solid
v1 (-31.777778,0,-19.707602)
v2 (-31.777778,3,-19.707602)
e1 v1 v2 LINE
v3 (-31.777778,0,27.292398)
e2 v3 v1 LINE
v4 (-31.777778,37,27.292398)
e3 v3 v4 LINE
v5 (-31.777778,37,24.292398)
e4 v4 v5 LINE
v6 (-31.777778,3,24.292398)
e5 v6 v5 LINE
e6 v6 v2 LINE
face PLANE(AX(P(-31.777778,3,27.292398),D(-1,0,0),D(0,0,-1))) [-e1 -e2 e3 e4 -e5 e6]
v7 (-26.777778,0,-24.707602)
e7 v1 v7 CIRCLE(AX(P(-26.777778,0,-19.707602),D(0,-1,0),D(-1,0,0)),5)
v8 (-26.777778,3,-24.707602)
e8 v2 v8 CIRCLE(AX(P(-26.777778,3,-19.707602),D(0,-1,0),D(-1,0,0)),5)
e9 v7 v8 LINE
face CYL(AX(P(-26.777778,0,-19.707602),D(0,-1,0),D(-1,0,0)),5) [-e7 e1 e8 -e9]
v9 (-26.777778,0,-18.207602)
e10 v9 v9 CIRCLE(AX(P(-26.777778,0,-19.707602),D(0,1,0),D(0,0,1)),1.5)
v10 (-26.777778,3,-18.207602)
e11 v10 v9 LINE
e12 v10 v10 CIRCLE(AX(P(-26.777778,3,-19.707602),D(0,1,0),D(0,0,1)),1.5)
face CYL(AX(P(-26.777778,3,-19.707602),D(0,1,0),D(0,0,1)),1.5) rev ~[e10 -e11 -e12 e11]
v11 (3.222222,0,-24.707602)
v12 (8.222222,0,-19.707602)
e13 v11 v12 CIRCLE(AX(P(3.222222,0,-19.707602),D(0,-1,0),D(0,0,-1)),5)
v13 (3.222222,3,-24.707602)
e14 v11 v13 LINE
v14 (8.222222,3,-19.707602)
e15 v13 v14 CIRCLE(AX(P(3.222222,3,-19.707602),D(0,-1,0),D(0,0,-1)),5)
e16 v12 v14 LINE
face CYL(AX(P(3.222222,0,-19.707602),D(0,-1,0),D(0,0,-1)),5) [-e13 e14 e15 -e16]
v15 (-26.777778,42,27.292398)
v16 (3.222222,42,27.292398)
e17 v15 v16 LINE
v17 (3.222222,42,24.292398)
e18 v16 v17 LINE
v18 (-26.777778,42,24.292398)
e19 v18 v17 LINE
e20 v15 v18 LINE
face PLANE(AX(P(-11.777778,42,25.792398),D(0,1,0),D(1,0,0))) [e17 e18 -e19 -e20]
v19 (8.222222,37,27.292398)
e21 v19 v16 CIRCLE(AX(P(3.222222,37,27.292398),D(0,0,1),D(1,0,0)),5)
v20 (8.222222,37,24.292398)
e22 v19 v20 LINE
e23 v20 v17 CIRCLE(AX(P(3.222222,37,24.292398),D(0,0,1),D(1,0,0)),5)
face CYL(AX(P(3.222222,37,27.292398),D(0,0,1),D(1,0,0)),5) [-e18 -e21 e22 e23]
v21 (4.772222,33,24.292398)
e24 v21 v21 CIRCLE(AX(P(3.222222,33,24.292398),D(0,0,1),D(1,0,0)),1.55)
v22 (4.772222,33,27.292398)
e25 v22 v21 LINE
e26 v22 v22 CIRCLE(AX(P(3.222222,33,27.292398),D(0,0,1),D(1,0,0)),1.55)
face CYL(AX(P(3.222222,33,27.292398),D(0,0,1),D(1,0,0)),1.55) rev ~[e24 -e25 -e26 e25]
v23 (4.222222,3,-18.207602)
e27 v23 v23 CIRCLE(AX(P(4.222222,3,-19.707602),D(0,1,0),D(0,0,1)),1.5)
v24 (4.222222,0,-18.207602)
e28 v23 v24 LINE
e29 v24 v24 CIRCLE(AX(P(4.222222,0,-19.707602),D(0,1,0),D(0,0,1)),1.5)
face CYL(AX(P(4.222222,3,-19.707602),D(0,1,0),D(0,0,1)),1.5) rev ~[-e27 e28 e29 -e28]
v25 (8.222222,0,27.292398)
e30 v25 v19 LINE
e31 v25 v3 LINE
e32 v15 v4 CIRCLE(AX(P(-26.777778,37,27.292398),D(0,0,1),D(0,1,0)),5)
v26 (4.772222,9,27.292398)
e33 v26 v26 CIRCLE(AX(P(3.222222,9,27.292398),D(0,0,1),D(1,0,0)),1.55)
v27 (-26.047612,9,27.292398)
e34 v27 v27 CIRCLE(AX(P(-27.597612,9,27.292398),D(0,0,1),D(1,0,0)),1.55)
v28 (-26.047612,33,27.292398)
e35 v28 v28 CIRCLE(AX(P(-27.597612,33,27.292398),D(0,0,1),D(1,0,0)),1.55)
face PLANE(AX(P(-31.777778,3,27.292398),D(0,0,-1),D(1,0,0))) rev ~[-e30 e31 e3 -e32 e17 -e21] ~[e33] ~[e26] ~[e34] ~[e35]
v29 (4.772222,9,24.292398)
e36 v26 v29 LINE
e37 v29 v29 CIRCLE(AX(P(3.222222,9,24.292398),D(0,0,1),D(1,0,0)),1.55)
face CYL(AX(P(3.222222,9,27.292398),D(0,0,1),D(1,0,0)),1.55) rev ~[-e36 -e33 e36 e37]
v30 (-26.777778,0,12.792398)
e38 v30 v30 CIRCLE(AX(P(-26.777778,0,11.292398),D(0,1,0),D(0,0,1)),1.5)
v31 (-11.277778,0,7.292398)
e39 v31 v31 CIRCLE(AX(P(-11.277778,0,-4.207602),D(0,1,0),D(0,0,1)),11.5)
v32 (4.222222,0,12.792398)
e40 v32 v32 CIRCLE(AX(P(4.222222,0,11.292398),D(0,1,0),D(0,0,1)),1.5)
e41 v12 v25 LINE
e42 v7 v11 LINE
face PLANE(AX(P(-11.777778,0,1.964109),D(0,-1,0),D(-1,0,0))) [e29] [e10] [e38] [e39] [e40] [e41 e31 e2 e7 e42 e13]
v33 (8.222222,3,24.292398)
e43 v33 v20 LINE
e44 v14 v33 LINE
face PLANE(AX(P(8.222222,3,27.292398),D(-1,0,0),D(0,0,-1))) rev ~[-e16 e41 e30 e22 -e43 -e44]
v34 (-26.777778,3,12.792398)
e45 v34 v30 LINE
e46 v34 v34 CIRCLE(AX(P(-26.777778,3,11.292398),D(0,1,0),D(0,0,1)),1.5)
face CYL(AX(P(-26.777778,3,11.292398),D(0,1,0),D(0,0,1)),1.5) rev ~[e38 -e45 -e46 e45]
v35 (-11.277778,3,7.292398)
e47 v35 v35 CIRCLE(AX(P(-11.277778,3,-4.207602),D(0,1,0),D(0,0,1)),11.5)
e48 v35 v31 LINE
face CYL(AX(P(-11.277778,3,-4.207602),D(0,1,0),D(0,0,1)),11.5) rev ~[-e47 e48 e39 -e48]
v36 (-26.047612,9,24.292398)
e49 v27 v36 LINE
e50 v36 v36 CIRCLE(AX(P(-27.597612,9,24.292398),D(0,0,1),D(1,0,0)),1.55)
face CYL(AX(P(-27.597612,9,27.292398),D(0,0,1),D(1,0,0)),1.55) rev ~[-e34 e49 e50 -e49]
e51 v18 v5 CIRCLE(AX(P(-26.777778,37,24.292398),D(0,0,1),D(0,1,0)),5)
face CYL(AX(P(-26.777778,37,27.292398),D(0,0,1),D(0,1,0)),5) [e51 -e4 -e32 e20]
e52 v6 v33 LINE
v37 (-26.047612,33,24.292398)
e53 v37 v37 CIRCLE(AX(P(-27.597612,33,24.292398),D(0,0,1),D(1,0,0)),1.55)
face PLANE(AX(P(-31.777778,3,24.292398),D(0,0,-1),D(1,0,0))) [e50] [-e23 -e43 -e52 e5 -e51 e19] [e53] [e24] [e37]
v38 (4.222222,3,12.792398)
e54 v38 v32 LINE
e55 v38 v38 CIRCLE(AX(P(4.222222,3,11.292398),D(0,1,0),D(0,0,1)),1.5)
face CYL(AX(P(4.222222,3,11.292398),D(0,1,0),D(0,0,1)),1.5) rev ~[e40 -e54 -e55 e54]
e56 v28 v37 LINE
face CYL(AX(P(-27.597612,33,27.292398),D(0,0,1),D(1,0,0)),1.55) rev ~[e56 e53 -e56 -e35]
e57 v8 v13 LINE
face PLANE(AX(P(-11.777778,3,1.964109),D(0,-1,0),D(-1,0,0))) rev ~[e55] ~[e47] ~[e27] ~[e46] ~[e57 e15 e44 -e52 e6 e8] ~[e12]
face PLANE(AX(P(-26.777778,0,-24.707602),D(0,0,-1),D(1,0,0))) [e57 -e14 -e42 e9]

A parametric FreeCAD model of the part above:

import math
import FreeCAD as App
import Part
import Sketcher

V = App.Vector


def add_polygon(sketch, points):
    """Adds a closed chain of lines whose ends are joined by coincident constraints."""
    first, n = sketch.GeometryCount, len(points)
    for a, b in zip(points, points[1:] + points[:1]):
        sketch.addGeometry(Part.LineSegment(App.Vector(*a, 0), App.Vector(*b, 0)), False)
    for i in range(n):
        sketch.addConstraint(Sketcher.Constraint("Coincident", first + i, 2, first + (i + 1) % n, 1))

doc = App.newDocument("Part")
params = doc.addObject("Spreadsheet::Sheet", "Params")
for row, (alias, value) in enumerate([
    ("sketch1_radius", "5 mm"),
    ("sketch1_width", "30 mm"),
    ("sketch1_height", "47 mm"),
    ("pad1_length", "3 mm"),
    ("sketch2_width", "40 mm"),
    ("sketch2_height", "3 mm"),
    ("pad2_length", "39 mm"),
    ("sketch3_radius", "5 mm"),
    ("sketch4_radius", "5 mm"),
    ("sketch5_diameter", "3 mm"),
    ("sketch6_diameter", "3 mm"),
    ("sketch7_diameter", "3 mm"),
    ("sketch8_diameter", "3 mm"),
    ("sketch9_diameter", "23 mm"),
    ("sketch10_diameter", "3.1 mm"),
    ("sketch11_diameter", "3.1 mm"),
    ("sketch12_diameter", "3.1 mm"),
    ("sketch13_diameter", "3.1 mm"),
], start=1):
    params.set(f"A{row}", alias)
    params.set(f"B{row}", "=" + value)
    params.setAlias(f"B{row}", alias)

body = doc.addObject("PartDesign::Body", "Body")

sketch1 = doc.addObject("Sketcher::SketchObject", "Sketch")
body.addObject(sketch1)
sketch1.AttachmentSupport = (doc.XZ_Plane, [""])
sketch1.MapMode = "FlatFace"
sketch1.addGeometry([
    Part.LineSegment(V(3, -25, 0), V(-27, -25, 0)),
    Part.ArcOfCircle(Part.Circle(V(-27, -20, 0), V(0, 0, 1), 5), math.radians(180), math.radians(270)),
    Part.LineSegment(V(-32, -20, 0), V(-32, 27, 0)),
    Part.LineSegment(V(-32, 27, 0), V(8, 27, 0)),
    Part.LineSegment(V(8, 27, 0), V(8, -20, 0)),
    Part.ArcOfCircle(Part.Circle(V(3, -20, 0), V(0, 0, 1), 5), math.radians(-90), math.radians(0)),
], False)
sketch1.addConstraint([
    Sketcher.Constraint("Tangent", 0, 2, 1, 2),
    Sketcher.Constraint("Tangent", 1, 1, 2, 1),
    Sketcher.Constraint("Coincident", 2, 2, 3, 1),
    Sketcher.Constraint("Coincident", 3, 2, 4, 1),
    Sketcher.Constraint("Tangent", 4, 2, 5, 2),
    Sketcher.Constraint("Tangent", 5, 1, 0, 1),
    Sketcher.Constraint("Horizontal", 0),
    Sketcher.Constraint("Vertical", 2),
    Sketcher.Constraint("Horizontal", 3),
    Sketcher.Constraint("Vertical", 4),
    Sketcher.Constraint("Equal", 1, 5),
    Sketcher.Constraint("Radius", 1, 5.0),
    Sketcher.Constraint("DistanceX", 0, 2, 0, 1, 30.0),
    Sketcher.Constraint("DistanceY", 2, 1, 2, 2, 47.0),
    Sketcher.Constraint("DistanceX", 1, 3, -1, 1, 26.777778),
    Sketcher.Constraint("DistanceY", 1, 3, -1, 1, 19.707602),
])
sketch1.setExpression("Constraints[11]", "Params.sketch1_radius")
sketch1.setExpression("Constraints[12]", "Params.sketch1_width")
sketch1.setExpression("Constraints[13]", "Params.sketch1_height")
pad1 = doc.addObject("PartDesign::Pad", "Pad")
body.addObject(pad1)
pad1.Profile = sketch1
pad1.setExpression("Length", "Params.pad1_length")
pad1.Reversed = True

sketch2 = doc.addObject("Sketcher::SketchObject", "Sketch001")
body.addObject(sketch2)
sketch2.AttachmentSupport = (doc.XZ_Plane, [""])
sketch2.MapMode = "FlatFace"
sketch2.AttachmentOffset = App.Placement(V(0, 0, -3), App.Rotation())
add_polygon(sketch2, [(-31.8, 24.3), (-31.8, 27.3), (8.2, 27.3), (8.2, 24.3)])
sketch2.addConstraint([
    Sketcher.Constraint("Vertical", 0),
    Sketcher.Constraint("Horizontal", 1),
    Sketcher.Constraint("Vertical", 2),
    Sketcher.Constraint("Horizontal", 3),
    Sketcher.Constraint("DistanceX", 1, 1, 1, 2, 40.0),
    Sketcher.Constraint("DistanceY", 0, 1, 0, 2, 3.0),
    Sketcher.Constraint("DistanceX", 0, 2, -1, 1, 31.777778),
    Sketcher.Constraint("DistanceY", -1, 1, 0, 2, 27.292398),
])
sketch2.setExpression("Constraints[8]", "Params.sketch2_width")
sketch2.setExpression("Constraints[9]", "Params.sketch2_height")
pad2 = doc.addObject("PartDesign::Pad", "Pad001")
body.addObject(pad2)
pad2.Profile = sketch2
pad2.setExpression("Length", "Params.pad2_length")
pad2.Reversed = True

sketch3 = doc.addObject("Sketcher::SketchObject", "Sketch002")
body.addObject(sketch3)
sketch3.AttachmentSupport = (doc.XY_Plane, [""])
sketch3.MapMode = "FlatFace"
sketch3.AttachmentOffset = App.Placement(V(0, 0, 27.292398), App.Rotation())
sketch3.addGeometry([
    Part.LineSegment(V(-32, 42, 0), V(-32, 37, 0)),
    Part.ArcOfCircle(Part.Circle(V(-27, 37, 0), V(0, 0, 1), 5), math.radians(90), math.radians(180)),
    Part.LineSegment(V(-27, 42, 0), V(-32, 42, 0)),
], False)
sketch3.addConstraint([
    Sketcher.Constraint("Tangent", 0, 2, 1, 2),
    Sketcher.Constraint("Tangent", 1, 1, 2, 1),
    Sketcher.Constraint("Coincident", 2, 2, 0, 1),
    Sketcher.Constraint("Vertical", 0),
    Sketcher.Constraint("Horizontal", 2),
    Sketcher.Constraint("Radius", 1, 5.0),
    Sketcher.Constraint("DistanceY", -1, 1, 1, 3, 37.0),
    Sketcher.Constraint("DistanceX", 1, 3, -1, 1, 26.777778),
])
sketch3.setExpression("Constraints[5]", "Params.sketch3_radius")
pocket1 = doc.addObject("PartDesign::Pocket", "Pocket")
body.addObject(pocket1)
pocket1.Profile = sketch3
pocket1.Type = "UpToFirst"

sketch4 = doc.addObject("Sketcher::SketchObject", "Sketch003")
body.addObject(sketch4)
sketch4.AttachmentSupport = (doc.XY_Plane, [""])
sketch4.MapMode = "FlatFace"
sketch4.AttachmentOffset = App.Placement(V(0, 0, 27.292398), App.Rotation())
sketch4.addGeometry([
    Part.LineSegment(V(8.2, 42, 0), V(3.2, 42, 0)),
    Part.ArcOfCircle(Part.Circle(V(3.2, 37, 0), V(0, 0, 1), 5), math.radians(0), math.radians(90)),
    Part.LineSegment(V(8.2, 37, 0), V(8.2, 42, 0)),
], False)
sketch4.addConstraint([
    Sketcher.Constraint("Tangent", 0, 2, 1, 2),
    Sketcher.Constraint("Tangent", 1, 1, 2, 1),
    Sketcher.Constraint("Coincident", 2, 2, 0, 1),
    Sketcher.Constraint("Horizontal", 0),
    Sketcher.Constraint("Vertical", 2),
    Sketcher.Constraint("Radius", 1, 5.0),
    Sketcher.Constraint("DistanceY", -1, 1, 1, 3, 37.0),
    Sketcher.Constraint("DistanceX", -1, 1, 1, 3, 3.222222),
])
sketch4.setExpression("Constraints[5]", "Params.sketch4_radius")
pocket2 = doc.addObject("PartDesign::Pocket", "Pocket001")
body.addObject(pocket2)
pocket2.Profile = sketch4
pocket2.Type = "UpToFirst"

sketch5 = doc.addObject("Sketcher::SketchObject", "Sketch004")
body.addObject(sketch5)
sketch5.AttachmentSupport = (doc.XZ_Plane, [""])
sketch5.MapMode = "FlatFace"
sketch5.AttachmentOffset = App.Placement(V(0, 0, -3), App.Rotation())
sketch5.addGeometry(Part.Circle(V(-26.8, -19.7, 0), V(0, 0, 1), 1.5), False)
sketch5.addConstraint([
    Sketcher.Constraint("Diameter", 0, 3.0),
    Sketcher.Constraint("DistanceX", 0, 3, -1, 1, 26.777778),
    Sketcher.Constraint("DistanceY", 0, 3, -1, 1, 19.707602),
])
sketch5.setExpression("Constraints[0]", "Params.sketch5_diameter")
pocket3 = doc.addObject("PartDesign::Pocket", "Pocket002")
body.addObject(pocket3)
pocket3.Profile = sketch5
pocket3.Type = "UpToFirst"
pocket3.Reversed = True

sketch6 = doc.addObject("Sketcher::SketchObject", "Sketch005")
body.addObject(sketch6)
sketch6.AttachmentSupport = (doc.XZ_Plane, [""])
sketch6.MapMode = "FlatFace"
sketch6.AttachmentOffset = App.Placement(V(0, 0, -3), App.Rotation())
sketch6.addGeometry(Part.Circle(V(4.2, -19.7, 0), V(0, 0, 1), 1.5), False)
sketch6.addConstraint([
    Sketcher.Constraint("Diameter", 0, 3.0),
    Sketcher.Constraint("DistanceX", -1, 1, 0, 3, 4.222222),
    Sketcher.Constraint("DistanceY", 0, 3, -1, 1, 19.707602),
])
sketch6.setExpression("Constraints[0]", "Params.sketch6_diameter")
pocket4 = doc.addObject("PartDesign::Pocket", "Pocket003")
body.addObject(pocket4)
pocket4.Profile = sketch6
pocket4.Type = "UpToFirst"
pocket4.Reversed = True

sketch7 = doc.addObject("Sketcher::SketchObject", "Sketch006")
body.addObject(sketch7)
sketch7.AttachmentSupport = (doc.XZ_Plane, [""])
sketch7.MapMode = "FlatFace"
sketch7.AttachmentOffset = App.Placement(V(0, 0, -3), App.Rotation())
sketch7.addGeometry(Part.Circle(V(-26.8, 11.3, 0), V(0, 0, 1), 1.5), False)
sketch7.addConstraint([
    Sketcher.Constraint("Diameter", 0, 3.0),
    Sketcher.Constraint("DistanceX", 0, 3, -1, 1, 26.777778),
    Sketcher.Constraint("DistanceY", -1, 1, 0, 3, 11.292398),
])
sketch7.setExpression("Constraints[0]", "Params.sketch7_diameter")
pocket5 = doc.addObject("PartDesign::Pocket", "Pocket004")
body.addObject(pocket5)
pocket5.Profile = sketch7
pocket5.Type = "UpToFirst"
pocket5.Reversed = True

sketch8 = doc.addObject("Sketcher::SketchObject", "Sketch007")
body.addObject(sketch8)
sketch8.AttachmentSupport = (doc.XZ_Plane, [""])
sketch8.MapMode = "FlatFace"
sketch8.AttachmentOffset = App.Placement(V(0, 0, -3), App.Rotation())
sketch8.addGeometry(Part.Circle(V(4.2, 11.3, 0), V(0, 0, 1), 1.5), False)
sketch8.addConstraint([
    Sketcher.Constraint("Diameter", 0, 3.0),
    Sketcher.Constraint("DistanceX", -1, 1, 0, 3, 4.222222),
    Sketcher.Constraint("DistanceY", -1, 1, 0, 3, 11.292398),
])
sketch8.setExpression("Constraints[0]", "Params.sketch8_diameter")
pocket6 = doc.addObject("PartDesign::Pocket", "Pocket005")
body.addObject(pocket6)
pocket6.Profile = sketch8
pocket6.Type = "UpToFirst"
pocket6.Reversed = True

sketch9 = doc.addObject("Sketcher::SketchObject", "Sketch008")
body.addObject(sketch9)
sketch9.AttachmentSupport = (doc.XZ_Plane, [""])
sketch9.MapMode = "FlatFace"
sketch9.AttachmentOffset = App.Placement(V(0, 0, -3), App.Rotation())
sketch9.addGeometry(Part.Circle(V(-11, -4, 0), V(0, 0, 1), 12), False)
sketch9.addConstraint([
    Sketcher.Constraint("Diameter", 0, 23.0),
    Sketcher.Constraint("DistanceX", 0, 3, -1, 1, 11.277778),
    Sketcher.Constraint("DistanceY", 0, 3, -1, 1, 4.207602),
])
sketch9.setExpression("Constraints[0]", "Params.sketch9_diameter")
pocket7 = doc.addObject("PartDesign::Pocket", "Pocket006")
body.addObject(pocket7)
pocket7.Profile = sketch9
pocket7.Type = "UpToFirst"
pocket7.Reversed = True

sketch10 = doc.addObject("Sketcher::SketchObject", "Sketch009")
body.addObject(sketch10)
sketch10.AttachmentSupport = (doc.XY_Plane, [""])
sketch10.MapMode = "FlatFace"
sketch10.AttachmentOffset = App.Placement(V(0, 0, 27.292398), App.Rotation())
sketch10.addGeometry(Part.Circle(V(-27.6, 9, 0), V(0, 0, 1), 1.6), False)
sketch10.addConstraint([
    Sketcher.Constraint("Diameter", 0, 3.1),
    Sketcher.Constraint("DistanceY", -1, 1, 0, 3, 9.0),
    Sketcher.Constraint("DistanceX", 0, 3, -1, 1, 27.597612),
])
sketch10.setExpression("Constraints[0]", "Params.sketch10_diameter")
pocket8 = doc.addObject("PartDesign::Pocket", "Pocket007")
body.addObject(pocket8)
pocket8.Profile = sketch10
pocket8.Type = "UpToFirst"

sketch11 = doc.addObject("Sketcher::SketchObject", "Sketch010")
body.addObject(sketch11)
sketch11.AttachmentSupport = (doc.XY_Plane, [""])
sketch11.MapMode = "FlatFace"
sketch11.AttachmentOffset = App.Placement(V(0, 0, 27.292398), App.Rotation())
sketch11.addGeometry(Part.Circle(V(-27.6, 33, 0), V(0, 0, 1), 1.6), False)
sketch11.addConstraint([
    Sketcher.Constraint("Diameter", 0, 3.1),
    Sketcher.Constraint("DistanceY", -1, 1, 0, 3, 33.0),
    Sketcher.Constraint("DistanceX", 0, 3, -1, 1, 27.597612),
])
sketch11.setExpression("Constraints[0]", "Params.sketch11_diameter")
pocket9 = doc.addObject("PartDesign::Pocket", "Pocket008")
body.addObject(pocket9)
pocket9.Profile = sketch11
pocket9.Type = "UpToFirst"

sketch12 = doc.addObject("Sketcher::SketchObject", "Sketch011")
body.addObject(sketch12)
sketch12.AttachmentSupport = (doc.XY_Plane, [""])
sketch12.MapMode = "FlatFace"
sketch12.AttachmentOffset = App.Placement(V(0, 0, 27.292398), App.Rotation())
sketch12.addGeometry(Part.Circle(V(3.2, 9, 0), V(0, 0, 1), 1.6), False)
sketch12.addConstraint([
    Sketcher.Constraint("Diameter", 0, 3.1),
    Sketcher.Constraint("DistanceY", -1, 1, 0, 3, 9.0),
    Sketcher.Constraint("DistanceX", -1, 1, 0, 3, 3.222222),
])
sketch12.setExpression("Constraints[0]", "Params.sketch12_diameter")
pocket10 = doc.addObject("PartDesign::Pocket", "Pocket009")
body.addObject(pocket10)
pocket10.Profile = sketch12
pocket10.Type = "UpToFirst"

sketch13 = doc.addObject("Sketcher::SketchObject", "Sketch012")
body.addObject(sketch13)
sketch13.AttachmentSupport = (doc.XY_Plane, [""])
sketch13.MapMode = "FlatFace"
sketch13.AttachmentOffset = App.Placement(V(0, 0, 27.292398), App.Rotation())
sketch13.addGeometry(Part.Circle(V(3.2, 33, 0), V(0, 0, 1), 1.6), False)
sketch13.addConstraint([
    Sketcher.Constraint("Diameter", 0, 3.1),
    Sketcher.Constraint("DistanceY", -1, 1, 0, 3, 33.0),
    Sketcher.Constraint("DistanceX", -1, 1, 0, 3, 3.222222),
])
sketch13.setExpression("Constraints[0]", "Params.sketch13_diameter")
pocket11 = doc.addObject("PartDesign::Pocket", "Pocket010")
body.addObject(pocket11)
pocket11.Profile = sketch13
pocket11.Type = "UpToFirst"

doc.recompute()
